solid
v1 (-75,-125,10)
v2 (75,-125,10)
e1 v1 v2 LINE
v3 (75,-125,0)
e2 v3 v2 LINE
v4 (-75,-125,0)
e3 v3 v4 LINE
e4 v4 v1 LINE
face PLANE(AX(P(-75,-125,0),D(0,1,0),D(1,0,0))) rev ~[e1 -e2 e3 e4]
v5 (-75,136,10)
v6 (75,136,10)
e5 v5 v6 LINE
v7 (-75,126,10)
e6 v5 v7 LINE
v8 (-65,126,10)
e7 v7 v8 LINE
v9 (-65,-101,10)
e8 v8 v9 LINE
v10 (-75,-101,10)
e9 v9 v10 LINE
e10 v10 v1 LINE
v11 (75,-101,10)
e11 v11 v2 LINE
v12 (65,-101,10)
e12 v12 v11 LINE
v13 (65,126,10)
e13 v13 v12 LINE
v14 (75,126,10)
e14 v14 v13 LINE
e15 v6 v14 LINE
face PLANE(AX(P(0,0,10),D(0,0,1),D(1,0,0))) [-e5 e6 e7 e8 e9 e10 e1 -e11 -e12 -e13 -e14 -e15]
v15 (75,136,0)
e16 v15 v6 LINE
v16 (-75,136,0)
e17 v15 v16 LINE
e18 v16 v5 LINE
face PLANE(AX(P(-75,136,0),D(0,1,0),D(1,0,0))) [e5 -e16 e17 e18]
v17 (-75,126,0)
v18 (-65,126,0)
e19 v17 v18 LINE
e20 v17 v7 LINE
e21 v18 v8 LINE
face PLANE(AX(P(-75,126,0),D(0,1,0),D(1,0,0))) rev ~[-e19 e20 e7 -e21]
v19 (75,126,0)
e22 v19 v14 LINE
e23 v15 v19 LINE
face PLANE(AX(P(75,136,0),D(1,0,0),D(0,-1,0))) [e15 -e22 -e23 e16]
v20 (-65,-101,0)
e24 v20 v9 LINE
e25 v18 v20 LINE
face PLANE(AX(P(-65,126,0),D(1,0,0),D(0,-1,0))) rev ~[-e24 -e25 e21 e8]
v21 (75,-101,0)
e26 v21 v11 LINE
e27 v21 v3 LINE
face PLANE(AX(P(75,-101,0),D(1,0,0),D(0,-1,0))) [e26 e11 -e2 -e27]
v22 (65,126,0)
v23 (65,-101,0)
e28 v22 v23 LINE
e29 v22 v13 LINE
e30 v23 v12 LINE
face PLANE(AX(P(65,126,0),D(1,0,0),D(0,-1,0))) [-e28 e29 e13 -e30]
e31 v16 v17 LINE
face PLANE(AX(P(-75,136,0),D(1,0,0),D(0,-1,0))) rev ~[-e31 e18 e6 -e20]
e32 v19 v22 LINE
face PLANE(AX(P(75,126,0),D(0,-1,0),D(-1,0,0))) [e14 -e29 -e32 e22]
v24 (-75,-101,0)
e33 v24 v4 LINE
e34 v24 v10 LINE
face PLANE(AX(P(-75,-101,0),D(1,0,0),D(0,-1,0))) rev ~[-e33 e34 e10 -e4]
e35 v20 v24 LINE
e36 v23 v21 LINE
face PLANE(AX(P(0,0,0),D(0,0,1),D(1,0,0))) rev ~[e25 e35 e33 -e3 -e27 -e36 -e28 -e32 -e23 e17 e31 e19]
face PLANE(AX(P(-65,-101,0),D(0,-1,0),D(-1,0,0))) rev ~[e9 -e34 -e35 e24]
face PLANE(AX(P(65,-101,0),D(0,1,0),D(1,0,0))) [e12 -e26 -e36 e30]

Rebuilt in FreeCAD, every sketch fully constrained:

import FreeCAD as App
import Part
import Sketcher
from FreeCAD import Vector


def add_polygon(sketch, points):
    """Adds a closed chain of lines whose ends are joined by coincident constraints."""
    first, n = sketch.GeometryCount, len(points)
    for a, b in zip(points, points[1:] + points[:1]):
        sketch.addGeometry(Part.LineSegment(App.Vector(*a, 0), App.Vector(*b, 0)), False)
    for i in range(n):
        sketch.addConstraint(Sketcher.Constraint("Coincident", first + i, 2, first + (i + 1) % n, 1))

doc = App.newDocument("Part")
body = doc.addObject("PartDesign::Body", "Body")

sketch1 = doc.addObject("Sketcher::SketchObject", "Sketch")
body.addObject(sketch1)
sketch1.AttachmentSupport = (doc.XY_Plane, [""])
sketch1.MapMode = "FlatFace"
add_polygon(sketch1, [(-75, 136), (-75, 126), (-65, 126), (-65, -101), (-75, -101), (-75, -125), (75, -125), (75, -101), (65, -101), (65, 126), (75, 126), (75, 136)])
sketch1.addConstraint(Sketcher.Constraint("Vertical", 0))
sketch1.addConstraint(Sketcher.Constraint("Horizontal", 1))
sketch1.addConstraint(Sketcher.Constraint("Vertical", 2))
sketch1.addConstraint(Sketcher.Constraint("Horizontal", 3))
sketch1.addConstraint(Sketcher.Constraint("Vertical", 4))
sketch1.addConstraint(Sketcher.Constraint("Horizontal", 5))
sketch1.addConstraint(Sketcher.Constraint("Vertical", 6))
sketch1.addConstraint(Sketcher.Constraint("Horizontal", 7))
sketch1.addConstraint(Sketcher.Constraint("Vertical", 8))
sketch1.addConstraint(Sketcher.Constraint("Horizontal", 9))
sketch1.addConstraint(Sketcher.Constraint("Vertical", 10))
sketch1.addConstraint(Sketcher.Constraint("Horizontal", 11))
sketch1.addConstraint(Sketcher.Constraint("Symmetric", 3, 2, 6, 2, -2))
sketch1.addConstraint(Sketcher.Constraint("Symmetric", 1, 2, 8, 2, -2))
sketch1.addConstraint(Sketcher.Constraint("Vertical", 0, 2, 3, 2))
sketch1.addConstraint(Sketcher.Constraint("Vertical", 6, 2, 9, 2))
sketch1.addConstraint(Sketcher.Constraint("Equal", 9, 0))
sketch1.addConstraint(Sketcher.Constraint("DistanceX", 1, 1, 1, 2, 10.0))
sketch1.addConstraint(Sketcher.Constraint("DistanceX", 5, 1, 5, 2, 150.0))
sketch1.addConstraint(Sketcher.Constraint("DistanceY", 4, 2, 4, 1, 24.0))
sketch1.addConstraint(Sketcher.Constraint("DistanceY", 2, 2, 2, 1, 227.0))
sketch1.addConstraint(Sketcher.Constraint("DistanceY", -1, 1, 0, 2, 126.0))
pad1 = doc.addObject("PartDesign::Pad", "Pad")
body.addObject(pad1)
pad1.Profile = sketch1
pad1.Length = 10

doc.recompute()
